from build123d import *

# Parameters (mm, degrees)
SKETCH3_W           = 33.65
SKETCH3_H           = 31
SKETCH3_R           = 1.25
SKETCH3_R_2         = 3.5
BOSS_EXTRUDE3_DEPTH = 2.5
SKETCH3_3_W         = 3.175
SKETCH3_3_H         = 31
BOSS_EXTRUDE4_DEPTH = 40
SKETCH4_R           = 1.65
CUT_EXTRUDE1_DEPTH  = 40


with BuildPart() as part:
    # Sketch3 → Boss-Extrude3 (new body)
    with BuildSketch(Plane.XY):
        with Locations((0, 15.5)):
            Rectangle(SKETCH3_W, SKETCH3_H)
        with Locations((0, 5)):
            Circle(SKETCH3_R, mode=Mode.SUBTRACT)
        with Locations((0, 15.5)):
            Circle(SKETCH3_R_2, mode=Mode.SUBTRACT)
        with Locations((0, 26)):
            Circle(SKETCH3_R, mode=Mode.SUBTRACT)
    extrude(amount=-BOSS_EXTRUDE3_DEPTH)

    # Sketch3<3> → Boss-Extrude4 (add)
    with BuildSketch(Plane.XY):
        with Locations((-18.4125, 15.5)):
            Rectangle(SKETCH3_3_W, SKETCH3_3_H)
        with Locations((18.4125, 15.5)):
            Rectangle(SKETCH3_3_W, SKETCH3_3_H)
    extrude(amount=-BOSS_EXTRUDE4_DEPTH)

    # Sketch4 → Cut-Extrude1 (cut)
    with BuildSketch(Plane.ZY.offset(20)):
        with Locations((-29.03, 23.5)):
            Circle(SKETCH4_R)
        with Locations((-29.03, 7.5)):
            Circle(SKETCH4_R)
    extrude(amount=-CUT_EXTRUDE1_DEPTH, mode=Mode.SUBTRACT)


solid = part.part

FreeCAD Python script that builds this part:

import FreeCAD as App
import Part
import Sketcher
from FreeCAD import Vector

doc = App.newDocument("Part")
body = doc.addObject("PartDesign::Body", "Body")

# Sketch on XY plane
sketch1 = body.newObject("Sketcher::SketchObject", "Sketch")
sketch1.AttachmentSupport = (doc.getObject("XY_Plane"), [""])
sketch1.MapMode = "FlatFace"
sketch1.addGeometry(Part.LineSegment(Vector(-16.8, 31, 0), Vector(-16.8, 0, 0)), False)
sketch1.addGeometry(Part.LineSegment(Vector(-16.8, 0, 0), Vector(16.8, 0, 0)), False)
sketch1.addGeometry(Part.LineSegment(Vector(16.8, 0, 0), Vector(16.8, 31, 0)), False)
sketch1.addGeometry(Part.LineSegment(Vector(16.8, 31, 0), Vector(-16.8, 31, 0)), False)
sketch1.addGeometry(Part.Circle(Vector(0, 5, 0), Vector(0, 0, 1), 1.2), False)
sketch1.addGeometry(Part.Circle(Vector(0, 15.5, 0), Vector(0, 0, 1), 3.5), False)
sketch1.addGeometry(Part.Circle(Vector(0, 26, 0), Vector(0, 0, 1), 1.2), False)
sketch1.addConstraint(Sketcher.Constraint("Coincident", 0, 2, 1, 1))
sketch1.addConstraint(Sketcher.Constraint("Coincident", 1, 2, 2, 1))
sketch1.addConstraint(Sketcher.Constraint("Coincident", 2, 2, 3, 1))
sketch1.addConstraint(Sketcher.Constraint("Coincident", 3, 2, 0, 1))
sketch1.addConstraint(Sketcher.Constraint("Vertical", 0))
sketch1.addConstraint(Sketcher.Constraint("Horizontal", 1))
sketch1.addConstraint(Sketcher.Constraint("Vertical", 2))
sketch1.addConstraint(Sketcher.Constraint("Horizontal", 3))
sketch1.addConstraint(Sketcher.Constraint("Equal", 4, 6))
sketch1.addConstraint(Sketcher.Constraint("Symmetric", 0, 2, 1, 2, -1, 1))
sketch1.addConstraint(Sketcher.Constraint("PointOnObject", 4, 3, -2))
sketch1.addConstraint(Sketcher.Constraint("PointOnObject", 5, 3, -2))
sketch1.addConstraint(Sketcher.Constraint("PointOnObject", 6, 3, -2))
sketch1.addConstraint(Sketcher.Constraint("Diameter", 5, 7.0))
sketch1.addConstraint(Sketcher.Constraint("Diameter", 4, 2.5))
sketch1.addConstraint(Sketcher.Constraint("DistanceY", 0, 2, 0, 1, 31.0))
sketch1.addConstraint(Sketcher.Constraint("DistanceY", -1, 1, 4, 3, 5.0))
sketch1.addConstraint(Sketcher.Constraint("DistanceY", -1, 1, 6, 3, 26.0))
sketch1.addConstraint(Sketcher.Constraint("DistanceX", 1, 1, 1, 2, 33.65))
sketch1.addConstraint(Sketcher.Constraint("DistanceY", -1, 1, 5, 3, 15.5))
pad1 = body.newObject("PartDesign::Pad", "Pad")
pad1.Profile = sketch1
pad1.Length = 2.5
pad1.Reversed = True

# Sketch on XY plane
sketch2 = body.newObject("Sketcher::SketchObject", "Sketch001")
sketch2.AttachmentSupport = (doc.getObject("XY_Plane"), [""])
sketch2.MapMode = "FlatFace"
sketch2.addGeometry(Part.LineSegment(Vector(-20, 31, 0), Vector(-20, 0, 0)), False)
sketch2.addGeometry(Part.LineSegment(Vector(-20, 0, 0), Vector(-16.8, 0, 0)), False)
sketch2.addGeometry(Part.LineSegment(Vector(-16.8, 0, 0), Vector(-16.8, 31, 0)), False)
sketch2.addGeometry(Part.LineSegment(Vector(-16.8, 31, 0), Vector(-20, 31, 0)), False)
sketch2.addGeometry(Part.LineSegment(Vector(16.8, 31, 0), Vector(16.8, 0, 0)), False)
sketch2.addGeometry(Part.LineSegment(Vector(16.8, 0, 0), Vector(20, 0, 0)), False)
sketch2.addGeometry(Part.LineSegment(Vector(20, 0, 0), Vector(20, 31, 0)), False)
sketch2.addGeometry(Part.LineSegment(Vector(20, 31, 0), Vector(16.8, 31, 0)), False)
sketch2.addConstraint(Sketcher.Constraint("Coincident", 0, 2, 1, 1))
sketch2.addConstraint(Sketcher.Constraint("Coincident", 1, 2, 2, 1))
sketch2.addConstraint(Sketcher.Constraint("Coincident", 2, 2, 3, 1))
sketch2.addConstraint(Sketcher.Constraint("Coincident", 3, 2, 0, 1))
sketch2.addConstraint(Sketcher.Constraint("Coincident", 4, 2, 5, 1))
sketch2.addConstraint(Sketcher.Constraint("Coincident", 5, 2, 6, 1))
sketch2.addConstraint(Sketcher.Constraint("Coincident", 6, 2, 7, 1))
sketch2.addConstraint(Sketcher.Constraint("Coincident", 7, 2, 4, 1))
sketch2.addConstraint(Sketcher.Constraint("Vertical", 0))
sketch2.addConstraint(Sketcher.Constraint("Horizontal", 1))
sketch2.addConstraint(Sketcher.Constraint("Vertical", 2))
sketch2.addConstraint(Sketcher.Constraint("Horizontal", 3))
sketch2.addConstraint(Sketcher.Constraint("Vertical", 4))
sketch2.addConstraint(Sketcher.Constraint("Horizontal", 5))
sketch2.addConstraint(Sketcher.Constraint("Vertical", 6))
sketch2.addConstraint(Sketcher.Constraint("Horizontal", 7))
sketch2.addConstraint(Sketcher.Constraint("Symmetric", 1, 2, 4, 2, -1, 1))
sketch2.addConstraint(Sketcher.Constraint("Symmetric", 0, 2, 5, 2, -2))
sketch2.addConstraint(Sketcher.Constraint("Horizontal", 3, 2, 6, 2))
sketch2.addConstraint(Sketcher.Constraint("DistanceY", 0, 2, 0, 1, 31.0))
sketch2.addConstraint(Sketcher.Constraint("DistanceX", 0, 2, -1, 1, 20.0))
sketch2.addConstraint(Sketcher.Constraint("DistanceX", 1, 1, 1, 2, 3.175))
pad2 = body.newObject("PartDesign::Pad", "Pad001")
pad2.Profile = sketch2
pad2.Length = 40
pad2.Reversed = True

# Sketch on YZ plane
sketch3 = body.newObject("Sketcher::SketchObject", "Sketch002")
sketch3.AttachmentSupport = (doc.getObject("YZ_Plane"), [""])
sketch3.MapMode = "FlatFace"
sketch3.AttachmentOffset = App.Placement(Vector(0, 0, -20), App.Rotation())
sketch3.addGeometry(Part.Circle(Vector(23.5, -29, 0), Vector(0, 0, 1), 1.6), False)
sketch3.addGeometry(Part.Circle(Vector(7.5, -29, 0), Vector(0, 0, 1), 1.6), False)
sketch3.addConstraint(Sketcher.Constraint("Equal", 0, 1))
sketch3.addConstraint(Sketcher.Constraint("Horizontal", 0, 3, 1, 3))
sketch3.addConstraint(Sketcher.Constraint("Diameter", 0, 3.3))
sketch3.addConstraint(Sketcher.Constraint("DistanceX", 1, 3, 0, 3, 16.0))
sketch3.addConstraint(Sketcher.Constraint("DistanceX", -1, 1, 0, 3, 23.5))
sketch3.addConstraint(Sketcher.Constraint("DistanceY", 0, 3, -1, 1, 29.03))
pocket1 = body.newObject("PartDesign::Pocket", "Pocket")
pocket1.Profile = sketch3
pocket1.Length = 40
pocket1.Reversed = True

doc.recompute()
